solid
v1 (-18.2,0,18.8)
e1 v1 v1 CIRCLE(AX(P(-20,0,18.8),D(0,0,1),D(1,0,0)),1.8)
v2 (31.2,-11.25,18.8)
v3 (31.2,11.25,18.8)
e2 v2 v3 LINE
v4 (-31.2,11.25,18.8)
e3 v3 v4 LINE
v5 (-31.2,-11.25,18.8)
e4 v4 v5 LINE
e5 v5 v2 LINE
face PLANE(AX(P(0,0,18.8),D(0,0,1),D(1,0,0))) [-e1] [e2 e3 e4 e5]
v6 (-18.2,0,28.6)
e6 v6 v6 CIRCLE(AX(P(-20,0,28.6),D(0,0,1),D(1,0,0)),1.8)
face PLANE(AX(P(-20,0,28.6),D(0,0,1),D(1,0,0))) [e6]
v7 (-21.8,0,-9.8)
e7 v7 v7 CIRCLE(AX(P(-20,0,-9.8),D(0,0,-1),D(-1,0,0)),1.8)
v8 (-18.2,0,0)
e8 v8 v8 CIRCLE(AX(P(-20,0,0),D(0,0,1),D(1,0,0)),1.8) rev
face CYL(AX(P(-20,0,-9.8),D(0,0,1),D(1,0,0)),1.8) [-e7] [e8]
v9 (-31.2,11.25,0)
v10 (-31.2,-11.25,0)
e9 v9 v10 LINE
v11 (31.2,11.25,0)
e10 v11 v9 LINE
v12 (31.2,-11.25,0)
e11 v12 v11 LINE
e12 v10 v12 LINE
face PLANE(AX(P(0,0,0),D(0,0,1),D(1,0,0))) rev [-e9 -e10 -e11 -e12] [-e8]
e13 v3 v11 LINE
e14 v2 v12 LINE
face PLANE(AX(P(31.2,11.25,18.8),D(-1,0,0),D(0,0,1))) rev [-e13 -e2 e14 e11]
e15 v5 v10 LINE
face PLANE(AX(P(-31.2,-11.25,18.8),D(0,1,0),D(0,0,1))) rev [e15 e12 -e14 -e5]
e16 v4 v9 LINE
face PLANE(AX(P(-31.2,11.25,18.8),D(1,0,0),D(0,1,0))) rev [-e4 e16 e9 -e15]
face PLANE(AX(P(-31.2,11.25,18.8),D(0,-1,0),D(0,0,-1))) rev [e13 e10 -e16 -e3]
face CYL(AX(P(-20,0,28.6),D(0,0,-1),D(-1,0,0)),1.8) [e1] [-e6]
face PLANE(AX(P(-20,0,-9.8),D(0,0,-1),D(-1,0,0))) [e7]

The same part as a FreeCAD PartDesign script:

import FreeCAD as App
import Part
import Sketcher


def add_polygon(sketch, points):
    """Adds a closed chain of lines whose ends are joined by coincident constraints."""
    first, n = sketch.GeometryCount, len(points)
    for a, b in zip(points, points[1:] + points[:1]):
        sketch.addGeometry(Part.LineSegment(App.Vector(*a, 0), App.Vector(*b, 0)), False)
    for i in range(n):
        sketch.addConstraint(Sketcher.Constraint("Coincident", first + i, 2, first + (i + 1) % n, 1))

doc = App.newDocument("Part")
body = doc.addObject("PartDesign::Body", "Body")

# Sketch on XY plane
sketch1 = body.newObject("Sketcher::SketchObject", "Sketch")
sketch1.AttachmentSupport = (doc.getObject("XY_Plane"), [""])
sketch1.MapMode = "FlatFace"
add_polygon(sketch1, [(-31, 11), (-31, -11), (31, -11), (31, 11)])  # lines 0-3
sketch1.addConstraint([
    Sketcher.Constraint("Vertical", 0),
    Sketcher.Constraint("Horizontal", 1),
    Sketcher.Constraint("Vertical", 2),
    Sketcher.Constraint("Horizontal", 3),
    Sketcher.Constraint("Symmetric", 0, 2, 2, 2, -1, 1),
    Sketcher.Constraint("DistanceX", 1, 1, 1, 2, 62.4),
    Sketcher.Constraint("DistanceY", 0, 2, 0, 1, 22.5),
])
pad1 = body.newObject("PartDesign::Pad", "Pad")
pad1.Profile = sketch1
pad1.Length = 18.8

# Sketch on XY plane
sketch2 = body.newObject("Sketcher::SketchObject", "Sketch001")
sketch2.AttachmentSupport = (doc.getObject("XY_Plane"), [""])
sketch2.MapMode = "FlatFace"
sketch2.AttachmentOffset = App.Placement(App.Vector(0, 0, 18.8), App.Rotation())
sketch2.addGeometry(Part.Circle(App.Vector(-20, 0, 0), App.Vector(0, 0, 1), 1.8), False)
sketch2.addConstraint([
    Sketcher.Constraint("PointOnObject", 0, 3, -1),
    Sketcher.Constraint("Diameter", 0, 3.6),
    Sketcher.Constraint("DistanceX", 0, 3, -1, 1, 20.0),
])
pad2 = body.newObject("PartDesign::Pad", "Pad001")
pad2.Profile = sketch2
pad2.Length = 9.8

# Sketch on XY plane
sketch3 = body.newObject("Sketcher::SketchObject", "Sketch002")
sketch3.AttachmentSupport = (doc.getObject("XY_Plane"), [""])
sketch3.MapMode = "FlatFace"
sketch3.AttachmentOffset = App.Placement(App.Vector(0, 0, -9.8), App.Rotation())
sketch3.addGeometry(Part.Circle(App.Vector(-20, 0, 0), App.Vector(0, 0, 1), 1.8), False)
sketch3.addConstraint([
    Sketcher.Constraint("PointOnObject", 0, 3, -1),
    Sketcher.Constraint("Diameter", 0, 3.6),
    Sketcher.Constraint("DistanceX", 0, 3, -1, 1, 20.0),
])
pad3 = body.newObject("PartDesign::Pad", "Pad002")
pad3.Profile = sketch3
pad3.Length = 9.8

doc.recompute()
